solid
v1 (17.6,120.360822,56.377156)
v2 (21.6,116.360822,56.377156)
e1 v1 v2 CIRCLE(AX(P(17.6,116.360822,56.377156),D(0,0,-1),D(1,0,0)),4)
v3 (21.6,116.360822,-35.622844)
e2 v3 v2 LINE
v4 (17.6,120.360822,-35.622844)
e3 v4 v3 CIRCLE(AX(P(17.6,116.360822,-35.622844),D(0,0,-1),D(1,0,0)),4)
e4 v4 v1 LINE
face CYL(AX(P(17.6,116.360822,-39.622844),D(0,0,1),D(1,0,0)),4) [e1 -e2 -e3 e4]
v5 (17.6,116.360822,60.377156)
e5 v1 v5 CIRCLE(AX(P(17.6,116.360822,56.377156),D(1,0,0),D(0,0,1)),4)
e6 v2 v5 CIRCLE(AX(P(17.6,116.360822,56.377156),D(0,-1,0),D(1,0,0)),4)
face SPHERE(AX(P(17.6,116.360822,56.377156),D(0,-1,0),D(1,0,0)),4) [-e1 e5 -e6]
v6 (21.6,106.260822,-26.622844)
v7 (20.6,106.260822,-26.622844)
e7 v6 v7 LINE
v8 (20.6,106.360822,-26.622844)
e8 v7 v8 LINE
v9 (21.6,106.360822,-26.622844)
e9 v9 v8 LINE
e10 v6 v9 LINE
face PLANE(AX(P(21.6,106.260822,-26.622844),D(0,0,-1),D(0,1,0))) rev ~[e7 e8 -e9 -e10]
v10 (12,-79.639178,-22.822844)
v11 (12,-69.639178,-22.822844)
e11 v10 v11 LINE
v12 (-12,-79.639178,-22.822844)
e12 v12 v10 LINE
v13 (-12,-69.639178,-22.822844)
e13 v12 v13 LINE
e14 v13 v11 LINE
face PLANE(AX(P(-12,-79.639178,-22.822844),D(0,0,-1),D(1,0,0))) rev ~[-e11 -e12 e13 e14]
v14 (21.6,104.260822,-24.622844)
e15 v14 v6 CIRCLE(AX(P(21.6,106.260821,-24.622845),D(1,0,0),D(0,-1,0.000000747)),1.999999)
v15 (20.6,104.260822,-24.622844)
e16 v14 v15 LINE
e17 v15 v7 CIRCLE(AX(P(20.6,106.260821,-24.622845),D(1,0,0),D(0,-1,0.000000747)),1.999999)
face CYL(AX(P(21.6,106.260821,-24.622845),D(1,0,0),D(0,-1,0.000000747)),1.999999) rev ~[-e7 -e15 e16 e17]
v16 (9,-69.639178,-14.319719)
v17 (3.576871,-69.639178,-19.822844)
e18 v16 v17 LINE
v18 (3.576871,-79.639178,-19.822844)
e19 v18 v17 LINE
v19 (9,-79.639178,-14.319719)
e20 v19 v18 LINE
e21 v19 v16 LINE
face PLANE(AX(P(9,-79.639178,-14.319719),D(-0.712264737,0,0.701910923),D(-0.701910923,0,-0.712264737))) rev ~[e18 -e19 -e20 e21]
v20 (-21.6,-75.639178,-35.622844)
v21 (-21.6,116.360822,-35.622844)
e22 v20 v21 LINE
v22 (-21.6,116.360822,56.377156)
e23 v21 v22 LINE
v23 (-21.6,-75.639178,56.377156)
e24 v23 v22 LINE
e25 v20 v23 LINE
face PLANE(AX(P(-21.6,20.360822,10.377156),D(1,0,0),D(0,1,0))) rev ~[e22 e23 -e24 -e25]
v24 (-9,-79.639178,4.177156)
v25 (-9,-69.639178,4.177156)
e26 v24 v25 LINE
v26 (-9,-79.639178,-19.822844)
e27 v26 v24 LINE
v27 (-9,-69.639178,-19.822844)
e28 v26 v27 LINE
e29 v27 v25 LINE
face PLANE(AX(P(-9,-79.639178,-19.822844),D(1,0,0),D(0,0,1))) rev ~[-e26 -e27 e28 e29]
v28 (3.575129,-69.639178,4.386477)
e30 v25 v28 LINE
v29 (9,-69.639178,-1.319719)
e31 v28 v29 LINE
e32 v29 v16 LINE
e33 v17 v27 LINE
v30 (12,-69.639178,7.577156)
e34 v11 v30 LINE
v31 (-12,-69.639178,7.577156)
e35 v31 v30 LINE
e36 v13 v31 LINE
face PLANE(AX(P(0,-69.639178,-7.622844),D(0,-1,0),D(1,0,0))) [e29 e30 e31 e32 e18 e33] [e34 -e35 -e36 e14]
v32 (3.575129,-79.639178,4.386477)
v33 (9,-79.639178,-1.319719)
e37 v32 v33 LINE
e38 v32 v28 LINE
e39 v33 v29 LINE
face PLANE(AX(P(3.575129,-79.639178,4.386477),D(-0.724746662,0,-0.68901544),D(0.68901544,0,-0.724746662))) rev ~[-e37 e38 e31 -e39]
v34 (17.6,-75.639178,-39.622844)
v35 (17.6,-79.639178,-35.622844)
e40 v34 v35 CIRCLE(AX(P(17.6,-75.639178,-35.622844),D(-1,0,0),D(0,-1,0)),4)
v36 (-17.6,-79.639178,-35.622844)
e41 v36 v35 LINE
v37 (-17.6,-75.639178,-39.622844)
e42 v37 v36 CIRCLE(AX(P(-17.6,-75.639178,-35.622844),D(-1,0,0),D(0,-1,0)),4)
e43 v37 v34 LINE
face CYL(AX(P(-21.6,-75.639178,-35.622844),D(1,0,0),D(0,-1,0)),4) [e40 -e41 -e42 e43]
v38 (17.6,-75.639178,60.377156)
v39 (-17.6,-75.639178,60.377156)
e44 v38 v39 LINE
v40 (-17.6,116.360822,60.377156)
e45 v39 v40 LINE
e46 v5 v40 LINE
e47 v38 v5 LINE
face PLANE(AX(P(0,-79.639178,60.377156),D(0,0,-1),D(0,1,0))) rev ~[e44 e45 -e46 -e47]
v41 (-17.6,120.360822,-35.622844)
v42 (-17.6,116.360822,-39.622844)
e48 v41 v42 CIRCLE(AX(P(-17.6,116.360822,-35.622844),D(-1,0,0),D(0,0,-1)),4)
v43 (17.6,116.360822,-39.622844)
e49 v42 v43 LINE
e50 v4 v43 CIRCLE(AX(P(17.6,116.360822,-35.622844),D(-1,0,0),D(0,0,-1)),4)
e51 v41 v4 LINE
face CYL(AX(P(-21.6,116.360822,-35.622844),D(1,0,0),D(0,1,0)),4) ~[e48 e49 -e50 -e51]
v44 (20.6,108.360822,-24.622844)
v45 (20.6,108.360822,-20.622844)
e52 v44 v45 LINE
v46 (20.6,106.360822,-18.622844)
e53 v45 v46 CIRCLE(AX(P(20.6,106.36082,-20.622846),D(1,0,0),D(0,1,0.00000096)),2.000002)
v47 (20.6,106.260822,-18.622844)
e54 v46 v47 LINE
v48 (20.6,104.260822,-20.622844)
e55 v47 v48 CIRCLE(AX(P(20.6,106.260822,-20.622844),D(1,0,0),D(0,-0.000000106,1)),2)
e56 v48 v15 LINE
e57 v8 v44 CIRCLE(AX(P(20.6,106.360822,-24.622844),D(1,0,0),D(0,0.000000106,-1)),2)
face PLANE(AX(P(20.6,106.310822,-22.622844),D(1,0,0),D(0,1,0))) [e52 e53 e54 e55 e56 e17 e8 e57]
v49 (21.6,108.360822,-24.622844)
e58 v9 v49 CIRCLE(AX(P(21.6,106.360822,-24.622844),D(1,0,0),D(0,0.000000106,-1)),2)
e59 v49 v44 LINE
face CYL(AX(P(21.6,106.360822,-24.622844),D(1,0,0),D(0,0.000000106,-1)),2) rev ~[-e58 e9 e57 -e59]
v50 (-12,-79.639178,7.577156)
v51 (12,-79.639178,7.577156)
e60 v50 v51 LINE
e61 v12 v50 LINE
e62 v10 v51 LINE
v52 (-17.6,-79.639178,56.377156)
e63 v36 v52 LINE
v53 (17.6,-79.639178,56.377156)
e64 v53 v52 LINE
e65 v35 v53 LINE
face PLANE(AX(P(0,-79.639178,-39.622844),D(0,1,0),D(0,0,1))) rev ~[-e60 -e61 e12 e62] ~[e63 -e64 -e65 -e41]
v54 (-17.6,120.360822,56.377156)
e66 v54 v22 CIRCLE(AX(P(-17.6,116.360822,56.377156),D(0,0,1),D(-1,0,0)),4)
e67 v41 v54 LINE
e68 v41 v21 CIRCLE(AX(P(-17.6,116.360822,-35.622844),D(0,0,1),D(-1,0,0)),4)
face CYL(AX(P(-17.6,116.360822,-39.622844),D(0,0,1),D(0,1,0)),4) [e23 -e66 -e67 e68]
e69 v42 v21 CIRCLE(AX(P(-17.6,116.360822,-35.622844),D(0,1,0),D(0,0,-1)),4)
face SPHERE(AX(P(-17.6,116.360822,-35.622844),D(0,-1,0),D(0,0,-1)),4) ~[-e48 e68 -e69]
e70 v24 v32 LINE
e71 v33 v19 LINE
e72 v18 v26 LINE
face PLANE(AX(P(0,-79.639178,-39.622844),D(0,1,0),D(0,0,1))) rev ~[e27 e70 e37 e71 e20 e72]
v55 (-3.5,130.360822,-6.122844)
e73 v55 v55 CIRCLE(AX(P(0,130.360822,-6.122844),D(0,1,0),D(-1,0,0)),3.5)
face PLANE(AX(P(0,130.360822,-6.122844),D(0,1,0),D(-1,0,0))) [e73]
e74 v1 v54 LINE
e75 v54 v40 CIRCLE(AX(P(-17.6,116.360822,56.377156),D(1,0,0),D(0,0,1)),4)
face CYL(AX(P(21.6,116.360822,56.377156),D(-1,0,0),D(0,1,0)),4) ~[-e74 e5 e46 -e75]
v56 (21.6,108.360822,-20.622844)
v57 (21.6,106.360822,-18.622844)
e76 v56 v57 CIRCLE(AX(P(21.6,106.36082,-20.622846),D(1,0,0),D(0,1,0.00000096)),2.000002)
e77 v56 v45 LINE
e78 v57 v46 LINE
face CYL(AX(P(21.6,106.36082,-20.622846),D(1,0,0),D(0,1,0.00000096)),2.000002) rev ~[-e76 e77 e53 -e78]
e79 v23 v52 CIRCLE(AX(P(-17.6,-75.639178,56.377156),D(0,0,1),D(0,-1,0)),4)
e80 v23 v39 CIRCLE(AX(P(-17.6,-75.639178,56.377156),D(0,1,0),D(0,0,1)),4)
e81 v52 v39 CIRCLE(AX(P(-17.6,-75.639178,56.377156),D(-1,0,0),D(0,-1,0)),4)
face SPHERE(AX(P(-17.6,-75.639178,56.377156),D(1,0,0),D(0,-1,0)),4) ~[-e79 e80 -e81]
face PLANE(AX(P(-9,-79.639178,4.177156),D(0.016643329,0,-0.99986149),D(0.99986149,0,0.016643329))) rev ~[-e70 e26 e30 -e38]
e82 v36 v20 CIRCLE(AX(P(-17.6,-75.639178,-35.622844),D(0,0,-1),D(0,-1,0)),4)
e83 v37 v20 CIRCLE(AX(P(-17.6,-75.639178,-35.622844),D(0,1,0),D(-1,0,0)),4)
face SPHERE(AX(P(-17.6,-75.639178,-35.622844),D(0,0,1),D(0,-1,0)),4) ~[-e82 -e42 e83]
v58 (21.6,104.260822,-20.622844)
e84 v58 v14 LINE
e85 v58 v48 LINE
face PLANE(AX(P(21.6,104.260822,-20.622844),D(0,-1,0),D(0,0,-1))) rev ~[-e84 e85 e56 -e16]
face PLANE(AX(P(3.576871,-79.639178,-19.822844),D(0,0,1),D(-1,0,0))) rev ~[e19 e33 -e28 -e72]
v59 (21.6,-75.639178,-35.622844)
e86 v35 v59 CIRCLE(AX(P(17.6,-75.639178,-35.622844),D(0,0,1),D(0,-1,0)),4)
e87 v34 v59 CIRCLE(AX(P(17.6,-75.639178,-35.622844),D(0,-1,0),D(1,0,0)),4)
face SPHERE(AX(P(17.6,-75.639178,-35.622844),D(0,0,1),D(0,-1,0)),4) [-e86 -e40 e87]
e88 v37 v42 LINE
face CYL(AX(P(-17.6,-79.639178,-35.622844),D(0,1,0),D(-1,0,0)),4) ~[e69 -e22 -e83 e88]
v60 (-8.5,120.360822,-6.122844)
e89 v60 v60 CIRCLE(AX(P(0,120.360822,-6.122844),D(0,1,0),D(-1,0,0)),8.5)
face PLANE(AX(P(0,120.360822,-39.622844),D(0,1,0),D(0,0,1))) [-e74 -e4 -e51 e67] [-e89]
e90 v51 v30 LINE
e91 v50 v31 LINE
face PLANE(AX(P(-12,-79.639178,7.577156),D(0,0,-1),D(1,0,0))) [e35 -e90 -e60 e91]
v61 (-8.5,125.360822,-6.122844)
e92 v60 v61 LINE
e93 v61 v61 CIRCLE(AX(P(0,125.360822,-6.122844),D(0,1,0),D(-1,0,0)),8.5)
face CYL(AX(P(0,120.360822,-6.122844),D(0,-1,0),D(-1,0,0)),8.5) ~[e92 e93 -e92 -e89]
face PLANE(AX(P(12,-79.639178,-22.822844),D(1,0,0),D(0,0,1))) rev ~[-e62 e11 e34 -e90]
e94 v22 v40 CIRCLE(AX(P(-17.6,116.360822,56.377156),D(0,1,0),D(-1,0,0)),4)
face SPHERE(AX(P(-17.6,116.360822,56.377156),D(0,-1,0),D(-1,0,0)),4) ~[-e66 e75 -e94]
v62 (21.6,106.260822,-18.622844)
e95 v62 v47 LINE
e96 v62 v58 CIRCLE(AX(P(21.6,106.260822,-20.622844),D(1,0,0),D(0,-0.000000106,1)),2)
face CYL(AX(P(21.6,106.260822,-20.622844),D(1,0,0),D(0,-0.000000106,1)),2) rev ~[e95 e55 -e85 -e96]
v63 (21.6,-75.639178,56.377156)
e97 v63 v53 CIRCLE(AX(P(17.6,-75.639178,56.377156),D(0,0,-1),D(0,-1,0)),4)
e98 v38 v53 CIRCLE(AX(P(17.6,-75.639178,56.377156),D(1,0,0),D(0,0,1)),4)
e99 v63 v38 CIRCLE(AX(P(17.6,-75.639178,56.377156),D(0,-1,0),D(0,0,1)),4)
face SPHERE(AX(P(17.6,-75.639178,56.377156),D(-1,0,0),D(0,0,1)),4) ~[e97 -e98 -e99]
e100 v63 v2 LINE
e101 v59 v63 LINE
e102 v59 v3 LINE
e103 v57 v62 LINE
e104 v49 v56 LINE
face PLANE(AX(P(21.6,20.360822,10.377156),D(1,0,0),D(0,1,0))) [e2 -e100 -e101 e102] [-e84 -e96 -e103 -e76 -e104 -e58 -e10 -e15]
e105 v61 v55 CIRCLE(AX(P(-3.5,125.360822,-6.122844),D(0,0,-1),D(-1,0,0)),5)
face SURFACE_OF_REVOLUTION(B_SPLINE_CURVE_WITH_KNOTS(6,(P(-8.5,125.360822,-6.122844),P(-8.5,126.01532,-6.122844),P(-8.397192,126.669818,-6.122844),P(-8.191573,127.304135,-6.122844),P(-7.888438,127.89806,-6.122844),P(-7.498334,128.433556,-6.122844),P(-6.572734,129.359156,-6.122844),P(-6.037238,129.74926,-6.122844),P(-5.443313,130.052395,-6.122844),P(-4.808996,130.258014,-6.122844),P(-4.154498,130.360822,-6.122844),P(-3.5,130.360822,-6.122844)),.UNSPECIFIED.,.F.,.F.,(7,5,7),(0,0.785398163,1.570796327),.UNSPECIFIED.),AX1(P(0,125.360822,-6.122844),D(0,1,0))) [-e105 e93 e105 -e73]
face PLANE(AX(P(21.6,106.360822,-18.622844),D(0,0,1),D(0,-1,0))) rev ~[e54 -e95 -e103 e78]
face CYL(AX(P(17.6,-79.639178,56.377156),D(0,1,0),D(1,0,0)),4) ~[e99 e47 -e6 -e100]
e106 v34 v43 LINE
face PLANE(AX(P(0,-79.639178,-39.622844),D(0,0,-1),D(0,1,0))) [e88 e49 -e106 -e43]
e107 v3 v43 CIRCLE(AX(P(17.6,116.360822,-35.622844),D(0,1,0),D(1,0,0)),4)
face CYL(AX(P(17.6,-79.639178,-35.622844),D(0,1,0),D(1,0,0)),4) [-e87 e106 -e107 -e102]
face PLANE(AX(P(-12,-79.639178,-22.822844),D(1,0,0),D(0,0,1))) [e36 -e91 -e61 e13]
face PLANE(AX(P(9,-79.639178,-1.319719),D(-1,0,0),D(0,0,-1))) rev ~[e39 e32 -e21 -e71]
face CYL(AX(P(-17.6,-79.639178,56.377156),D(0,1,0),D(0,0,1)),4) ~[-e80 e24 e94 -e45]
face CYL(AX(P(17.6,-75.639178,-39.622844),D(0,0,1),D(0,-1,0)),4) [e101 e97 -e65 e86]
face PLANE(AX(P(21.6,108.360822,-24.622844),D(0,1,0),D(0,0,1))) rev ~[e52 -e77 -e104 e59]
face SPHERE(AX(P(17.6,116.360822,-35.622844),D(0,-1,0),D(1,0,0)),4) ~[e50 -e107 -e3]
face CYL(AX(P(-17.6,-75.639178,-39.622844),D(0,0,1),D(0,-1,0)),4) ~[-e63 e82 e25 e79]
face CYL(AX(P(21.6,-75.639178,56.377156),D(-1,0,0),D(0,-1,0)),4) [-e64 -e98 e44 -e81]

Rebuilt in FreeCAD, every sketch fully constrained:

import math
import FreeCAD as App
import Part
import Sketcher
from FreeCAD import Vector


def edges_at(feature, points):
    """Names of the edges that pass closest to the given points."""
    edges = feature.Shape.Edges
    near = lambda p: min(range(len(edges)), key=lambda i: edges[i].distToShape(Part.Vertex(*p))[0])
    return sorted({f"Edge{near(p) + 1}" for p in points})

doc = App.newDocument("Part")
body = doc.addObject("PartDesign::Body", "Body")

sketch1 = body.newObject("Sketcher::SketchObject", "Sketch")
sketch1.AttachmentSupport = (doc.getObject("YZ_Plane"), [""])
sketch1.MapMode = "FlatFace"
sketch1.addGeometry(Part.LineSegment(Vector(-79.639178, 60.377156, 0), Vector(-79.639178, -39.622844, 0)), False)
sketch1.addGeometry(Part.LineSegment(Vector(-79.639178, -39.622844, 0), Vector(120.360822, -39.622844, 0)), False)
sketch1.addGeometry(Part.LineSegment(Vector(120.360822, -39.622844, 0), Vector(120.360822, 60.377156, 0)), False)
sketch1.addGeometry(Part.LineSegment(Vector(120.360822, 60.377156, 0), Vector(-79.639178, 60.377156, 0)), False)
sketch1.addConstraint(Sketcher.Constraint("Coincident", 0, 2, 1, 1))
sketch1.addConstraint(Sketcher.Constraint("Coincident", 1, 2, 2, 1))
sketch1.addConstraint(Sketcher.Constraint("Coincident", 2, 2, 3, 1))
sketch1.addConstraint(Sketcher.Constraint("Coincident", 3, 2, 0, 1))
sketch1.addConstraint(Sketcher.Constraint("Vertical", 0))
sketch1.addConstraint(Sketcher.Constraint("Horizontal", 1))
sketch1.addConstraint(Sketcher.Constraint("Vertical", 2))
sketch1.addConstraint(Sketcher.Constraint("Horizontal", 3))
sketch1.addConstraint(Sketcher.Constraint("DistanceX", 1, 1, 1, 2, 200.0))
sketch1.addConstraint(Sketcher.Constraint("DistanceY", 0, 2, 0, 1, 100.0))
sketch1.addConstraint(Sketcher.Constraint("DistanceX", 0, 2, -1, 1, 79.639178))
sketch1.addConstraint(Sketcher.Constraint("DistanceY", 0, 2, -1, 1, 39.622844))
pad1 = body.newObject("PartDesign::Pad", "Pad")
pad1.Profile = sketch1
pad1.Length = 43.2
pad1.Midplane = True
doc.recompute()

fillet = body.newObject("PartDesign::Fillet", "Fillet")
fillet.Base = (pad1, ["Edge1"])
fillet.UseAllEdges = True
fillet.Radius = 4

sketch2 = body.newObject("Sketcher::SketchObject", "Sketch001")
sketch2.AttachmentSupport = (doc.getObject("YZ_Plane"), [""])
sketch2.MapMode = "FlatFace"
sketch2.AttachmentOffset = App.Placement(Vector(0, 0, 21.6), App.Rotation())
sketch2.addGeometry(Part.LineSegment(Vector(106.260822, -26.622844, 0), Vector(106.360822, -26.622844, 0)), False)
sketch2.addGeometry(Part.ArcOfCircle(Part.Circle(Vector(106.360822, -24.622844, 0), Vector(0, 0, 1), 2), math.radians(-89.999994), math.radians(-0.000006)), False)
sketch2.addGeometry(Part.LineSegment(Vector(108.360822, -24.622844, 0), Vector(108.360822, -20.622844, 0)), False)
sketch2.addGeometry(Part.ArcOfCircle(Part.Circle(Vector(106.36082, -20.622846, 0), Vector(0, 0, 1), 2.000002), math.radians(0.000055), math.radians(89.999945)), False)
sketch2.addGeometry(Part.LineSegment(Vector(106.360822, -18.622844, 0), Vector(106.260822, -18.622844, 0)), False)
sketch2.addGeometry(Part.ArcOfCircle(Part.Circle(Vector(106.260822, -20.622844, 0), Vector(0, 0, 1), 2), math.radians(90.000006), math.radians(179.999994)), False)
sketch2.addGeometry(Part.LineSegment(Vector(104.260822, -20.622844, 0), Vector(104.260822, -24.622844, 0)), False)
sketch2.addGeometry(Part.ArcOfCircle(Part.Circle(Vector(106.260821, -24.622845, 0), Vector(0, 0, 1), 1.999999), math.radians(179.999957), math.radians(270.000043)), False)
sketch2.addConstraint(Sketcher.Constraint("Tangent", 0, 2, 1, 1))
sketch2.addConstraint(Sketcher.Constraint("Tangent", 1, 2, 2, 1))
sketch2.addConstraint(Sketcher.Constraint("Tangent", 2, 2, 3, 1))
sketch2.addConstraint(Sketcher.Constraint("Tangent", 3, 2, 4, 1))
sketch2.addConstraint(Sketcher.Constraint("Tangent", 4, 2, 5, 1))
sketch2.addConstraint(Sketcher.Constraint("Tangent", 5, 2, 6, 1))
sketch2.addConstraint(Sketcher.Constraint("Tangent", 6, 2, 7, 1))
sketch2.addConstraint(Sketcher.Constraint("Tangent", 7, 2, 0, 1))
sketch2.addConstraint(Sketcher.Constraint("Horizontal", 0))
sketch2.addConstraint(Sketcher.Constraint("Vertical", 2))
sketch2.addConstraint(Sketcher.Constraint("Horizontal", 4))
sketch2.addConstraint(Sketcher.Constraint("Vertical", 6))
sketch2.addConstraint(Sketcher.Constraint("Equal", 1, 3))
sketch2.addConstraint(Sketcher.Constraint("Equal", 3, 5))
sketch2.addConstraint(Sketcher.Constraint("Equal", 5, 7))
sketch2.addConstraint(Sketcher.Constraint("Radius", 1, 2.0))
sketch2.addConstraint(Sketcher.Constraint("DistanceY", 2, 1, 2, 2, 4.0))
sketch2.addConstraint(Sketcher.Constraint("DistanceX", 0, 1, 0, 2, 0.1))
sketch2.addConstraint(Sketcher.Constraint("DistanceX", -1, 1, 1, 3, 106.360822))
sketch2.addConstraint(Sketcher.Constraint("DistanceY", 1, 3, -1, 1, 24.622844))
pocket1 = body.newObject("PartDesign::Pocket", "Pocket")
pocket1.Profile = sketch2
pocket1.Length = 1

sketch3 = body.newObject("Sketcher::SketchObject", "Sketch002")
sketch3.AttachmentSupport = (doc.getObject("XZ_Plane"), [""])
sketch3.MapMode = "FlatFace"
sketch3.AttachmentOffset = App.Placement(Vector(0, 0, -120.360822), App.Rotation())
sketch3.addGeometry(Part.Circle(Vector(0, -6.122844, 0), Vector(0, 0, 1), 8.5), False)
sketch3.addConstraint(Sketcher.Constraint("PointOnObject", 0, 3, -2))
sketch3.addConstraint(Sketcher.Constraint("Diameter", 0, 17.0))
sketch3.addConstraint(Sketcher.Constraint("DistanceY", 0, 3, -1, 1, 6.122844))
pad2 = body.newObject("PartDesign::Pad", "Pad001")
pad2.Profile = sketch3
pad2.Length = 10
pad2.Reversed = True
doc.recompute()

fillet2 = body.newObject("PartDesign::Fillet", "Fillet001")
fillet2.Base = (pad2, edges_at(pad2, [(8.5, 130.361, -6.123)]))
fillet2.Radius = 5

sketch4 = body.newObject("Sketcher::SketchObject", "Sketch003")
sketch4.AttachmentSupport = (doc.getObject("XZ_Plane"), [""])
sketch4.MapMode = "FlatFace"
sketch4.AttachmentOffset = App.Placement(Vector(0, 0, 79.639178), App.Rotation())
sketch4.addGeometry(Part.LineSegment(Vector(-12, 7.577156, 0), Vector(-12, -22.822844, 0)), False)
sketch4.addGeometry(Part.LineSegment(Vector(-12, -22.822844, 0), Vector(12, -22.822844, 0)), False)
sketch4.addGeometry(Part.LineSegment(Vector(12, -22.822844, 0), Vector(12, 7.577156, 0)), False)
sketch4.addGeometry(Part.LineSegment(Vector(12, 7.577156, 0), Vector(-12, 7.577156, 0)), False)
sketch4.addGeometry(Part.LineSegment(Vector(3.576871, -19.822844, 0), Vector(-9, -19.822844, 0)), False)
sketch4.addGeometry(Part.LineSegment(Vector(-9, -19.822844, 0), Vector(-9, 4.177156, 0)), False)
sketch4.addGeometry(Part.LineSegment(Vector(-9, 4.177156, 0), Vector(3.575129, 4.386477, 0)), False)
sketch4.addGeometry(Part.LineSegment(Vector(3.575129, 4.386477, 0), Vector(9, -1.319719, 0)), False)
sketch4.addGeometry(Part.LineSegment(Vector(9, -1.319719, 0), Vector(9, -14.319719, 0)), False)
sketch4.addGeometry(Part.LineSegment(Vector(9, -14.319719, 0), Vector(3.576871, -19.822844, 0)), False)
sketch4.addConstraint(Sketcher.Constraint("Coincident", 0, 2, 1, 1))
sketch4.addConstraint(Sketcher.Constraint("Coincident", 1, 2, 2, 1))
sketch4.addConstraint(Sketcher.Constraint("Coincident", 2, 2, 3, 1))
sketch4.addConstraint(Sketcher.Constraint("Coincident", 3, 2, 0, 1))
sketch4.addConstraint(Sketcher.Constraint("Coincident", 4, 2, 5, 1))
sketch4.addConstraint(Sketcher.Constraint("Coincident", 5, 2, 6, 1))
sketch4.addConstraint(Sketcher.Constraint("Coincident", 6, 2, 7, 1))
sketch4.addConstraint(Sketcher.Constraint("Coincident", 7, 2, 8, 1))
sketch4.addConstraint(Sketcher.Constraint("Coincident", 8, 2, 9, 1))
sketch4.addConstraint(Sketcher.Constraint("Coincident", 9, 2, 4, 1))
sketch4.addConstraint(Sketcher.Constraint("Vertical", 0))
sketch4.addConstraint(Sketcher.Constraint("Horizontal", 1))
sketch4.addConstraint(Sketcher.Constraint("Vertical", 2))
sketch4.addConstraint(Sketcher.Constraint("Horizontal", 3))
sketch4.addConstraint(Sketcher.Constraint("Horizontal", 4))
sketch4.addConstraint(Sketcher.Constraint("Vertical", 5))
sketch4.addConstraint(Sketcher.Constraint("Vertical", 8))
sketch4.addConstraint(Sketcher.Constraint("Equal", 3, 5))
sketch4.addConstraint(Sketcher.Constraint("DistanceX", 1, 1, 1, 2, 24.0))
sketch4.addConstraint(Sketcher.Constraint("DistanceY", 8, 2, 8, 1, 13.0))
sketch4.addConstraint(Sketcher.Constraint("DistanceY", 0, 2, 0, 1, 30.4))
sketch4.addConstraint(Sketcher.Constraint("DistanceX", 0, 2, -1, 1, 12.0))
sketch4.addConstraint(Sketcher.Constraint("DistanceX", 4, 2, -1, 1, 9.0))
sketch4.addConstraint(Sketcher.Constraint("DistanceX", -1, 1, 7, 2, 9.0))
sketch4.addConstraint(Sketcher.Constraint("DistanceY", 0, 2, 4, 2, 3.0))
sketch4.addConstraint(Sketcher.Constraint("DistanceX", 4, 2, 4, 1, 12.576871))
sketch4.addConstraint(Sketcher.Constraint("Distance", 6, 12.576871))
sketch4.addConstraint(Sketcher.Constraint("DistanceX", -1, 1, 6, 2, 3.575129))
sketch4.addConstraint(Sketcher.Constraint("DistanceY", 7, 2, -1, 1, 1.319719))
sketch4.addConstraint(Sketcher.Constraint("Distance", 7, 7.873366))
pocket2 = body.newObject("PartDesign::Pocket", "Pocket001")
pocket2.Profile = sketch4
pocket2.Length = 10

doc.recompute()
